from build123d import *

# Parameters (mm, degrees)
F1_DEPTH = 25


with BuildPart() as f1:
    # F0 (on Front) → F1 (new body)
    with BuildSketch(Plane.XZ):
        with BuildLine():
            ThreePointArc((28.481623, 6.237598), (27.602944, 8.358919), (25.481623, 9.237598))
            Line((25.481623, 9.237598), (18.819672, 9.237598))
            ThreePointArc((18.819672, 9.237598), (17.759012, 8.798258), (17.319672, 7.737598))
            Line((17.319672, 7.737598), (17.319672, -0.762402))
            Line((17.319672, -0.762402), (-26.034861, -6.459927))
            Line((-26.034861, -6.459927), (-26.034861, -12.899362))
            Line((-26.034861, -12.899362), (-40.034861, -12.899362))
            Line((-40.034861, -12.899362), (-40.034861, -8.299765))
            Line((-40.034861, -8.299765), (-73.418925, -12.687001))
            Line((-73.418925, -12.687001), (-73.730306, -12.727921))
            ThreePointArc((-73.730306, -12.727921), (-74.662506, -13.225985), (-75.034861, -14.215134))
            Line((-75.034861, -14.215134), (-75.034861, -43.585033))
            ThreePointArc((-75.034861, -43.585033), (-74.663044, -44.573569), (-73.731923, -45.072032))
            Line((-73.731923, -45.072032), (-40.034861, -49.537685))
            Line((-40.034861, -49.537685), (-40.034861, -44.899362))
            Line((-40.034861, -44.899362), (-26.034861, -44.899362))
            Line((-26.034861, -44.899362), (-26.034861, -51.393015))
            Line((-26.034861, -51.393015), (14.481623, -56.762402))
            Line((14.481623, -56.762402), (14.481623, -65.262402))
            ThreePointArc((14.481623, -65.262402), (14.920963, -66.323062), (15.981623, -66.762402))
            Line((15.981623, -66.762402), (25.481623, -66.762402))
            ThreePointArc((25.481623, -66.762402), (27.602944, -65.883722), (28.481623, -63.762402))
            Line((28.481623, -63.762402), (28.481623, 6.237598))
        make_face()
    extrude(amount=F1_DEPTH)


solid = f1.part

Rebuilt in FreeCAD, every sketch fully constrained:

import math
import FreeCAD as App
import Part
import Sketcher
from FreeCAD import Vector

doc = App.newDocument("Part")
params = doc.addObject("Spreadsheet::Sheet", "Params")
for row, (alias, value) in enumerate([
    ("sketch1_radius", "2.999999 mm"),
    ("sketch1_radius2", "1.500001 mm"),
    ("sketch1_radius3", "1.500002 mm"),
    ("sketch1_radius4", "1.499999 mm"),
    ("sketch1_radius5", "1.500001 mm"),
    ("pad1_length", "25 mm"),
], start=1):
    params.set(f"A{row}", alias)
    params.set(f"B{row}", "=" + value)
    params.setAlias(f"B{row}", alias)

body = doc.addObject("PartDesign::Body", "Body")

# Sketch on XZ plane
sketch1 = body.newObject("Sketcher::SketchObject", "Sketch")
sketch1.AttachmentSupport = (doc.getObject("XZ_Plane"), [""])
sketch1.MapMode = "FlatFace"
sketch1.addGeometry([
    Part.ArcOfCircle(Part.Circle(Vector(25.481625, 6.2376, 0), Vector(0, 0, 1), 2.999998), math.radians(-0.000043), math.radians(90.000043)),  # 0
    Part.LineSegment(Vector(25.481623, 9.237598, 0), Vector(18.819672, 9.237598, 0)),  # 1
    Part.ArcOfCircle(Part.Circle(Vector(18.819673, 7.737597, 0), Vector(0, 0, 1), 1.500001), math.radians(90.000022), math.radians(179.999978)),  # 2
    Part.LineSegment(Vector(17.319672, 7.737598, 0), Vector(17.319672, -0.762402, 0)),  # 3
    Part.LineSegment(Vector(17.319672, -0.762402, 0), Vector(-26.034861, -6.459927, 0)),  # 4
    Part.LineSegment(Vector(-26.034861, -6.459927, 0), Vector(-26.034861, -12.899362, 0)),  # 5
    Part.LineSegment(Vector(-26.034861, -12.899362, 0), Vector(-40.034861, -12.899362, 0)),  # 6
    Part.LineSegment(Vector(-40.034861, -12.899362, 0), Vector(-40.034861, -8.299765, 0)),  # 7
    Part.LineSegment(Vector(-40.034861, -8.299765, 0), Vector(-73.418925, -12.687001, 0)),  # 8
    Part.LineSegment(Vector(-73.418925, -12.687001, 0), Vector(-73.730306, -12.727921, 0)),  # 9
    Part.ArcOfCircle(Part.Circle(Vector(-73.534859, -14.215135, 0), Vector(0, 0, 1), 1.500002), math.radians(97.486798), math.radians(179.999954)),  # 10
    Part.LineSegment(Vector(-75.034861, -14.215134, 0), Vector(-75.034861, -43.585033, 0)),  # 11
    Part.ArcOfCircle(Part.Circle(Vector(-73.534862, -43.585033, 0), Vector(0, 0, 1), 1.499999), math.radians(179.999984), math.radians(262.450986)),  # 12
    Part.LineSegment(Vector(-73.731923, -45.072032, 0), Vector(-40.034861, -49.537685, 0)),  # 13
    Part.LineSegment(Vector(-40.034861, -49.537685, 0), Vector(-40.034861, -44.899362, 0)),  # 14
    Part.LineSegment(Vector(-40.034861, -44.899362, 0), Vector(-26.034861, -44.899362, 0)),  # 15
    Part.LineSegment(Vector(-26.034861, -44.899362, 0), Vector(-26.034861, -51.393015, 0)),  # 16
    Part.LineSegment(Vector(-26.034861, -51.393015, 0), Vector(14.481623, -56.762402, 0)),  # 17
    Part.LineSegment(Vector(14.481623, -56.762402, 0), Vector(14.481623, -65.262402, 0)),  # 18
    Part.ArcOfCircle(Part.Circle(Vector(15.981624, -65.262401, 0), Vector(0, 0, 1), 1.500001), math.radians(-179.999978), math.radians(-90.000022)),  # 19
    Part.LineSegment(Vector(15.981623, -66.762402, 0), Vector(25.481623, -66.762402, 0)),  # 20
    Part.ArcOfCircle(Part.Circle(Vector(25.481624, -63.762403, 0), Vector(0, 0, 1), 2.999999), math.radians(-90.00001), math.radians(0.00001)),  # 21
    Part.LineSegment(Vector(28.481623, -63.762402, 0), Vector(28.481623, 6.237598, 0)),  # 22
], False)
sketch1.addConstraint([
    Sketcher.Constraint("Coincident", 0, 2, 1, 1),
    Sketcher.Constraint("Coincident", 1, 2, 2, 1),
    Sketcher.Constraint("Coincident", 2, 2, 3, 1),
    Sketcher.Constraint("Coincident", 3, 2, 4, 1),
    Sketcher.Constraint("Coincident", 4, 2, 5, 1),
    Sketcher.Constraint("Coincident", 5, 2, 6, 1),
    Sketcher.Constraint("Coincident", 6, 2, 7, 1),
    Sketcher.Constraint("Coincident", 7, 2, 8, 1),
    Sketcher.Constraint("Coincident", 8, 2, 9, 1),
    Sketcher.Constraint("Coincident", 9, 2, 10, 1),
    Sketcher.Constraint("Coincident", 10, 2, 11, 1),
    Sketcher.Constraint("Coincident", 11, 2, 12, 1),
    Sketcher.Constraint("Coincident", 12, 2, 13, 1),
    Sketcher.Constraint("Coincident", 13, 2, 14, 1),
    Sketcher.Constraint("Coincident", 14, 2, 15, 1),
    Sketcher.Constraint("Coincident", 15, 2, 16, 1),
    Sketcher.Constraint("Coincident", 16, 2, 17, 1),
    Sketcher.Constraint("Coincident", 17, 2, 18, 1),
    Sketcher.Constraint("Coincident", 18, 2, 19, 1),
    Sketcher.Constraint("Coincident", 19, 2, 20, 1),
    Sketcher.Constraint("Coincident", 20, 2, 21, 1),
    Sketcher.Constraint("Coincident", 21, 2, 22, 1),
    Sketcher.Constraint("Coincident", 22, 2, 0, 1),
    Sketcher.Constraint("Horizontal", 1),
    Sketcher.Constraint("Vertical", 3),
    Sketcher.Constraint("Vertical", 5),
    Sketcher.Constraint("Horizontal", 6),
    Sketcher.Constraint("Vertical", 7),
    Sketcher.Constraint("Vertical", 11),
    Sketcher.Constraint("Vertical", 14),
    Sketcher.Constraint("Horizontal", 15),
    Sketcher.Constraint("Vertical", 16),
    Sketcher.Constraint("Vertical", 18),
    Sketcher.Constraint("Horizontal", 20),
    Sketcher.Constraint("Vertical", 22),
    Sketcher.Constraint("Radius", 21, 2.999999),
    Sketcher.Constraint("Radius", 2, 1.500001),
    Sketcher.Constraint("Radius", 10, 1.500002),
    Sketcher.Constraint("Radius", 12, 1.499999),
    Sketcher.Constraint("Radius", 19, 1.500001),
    Sketcher.Constraint("DistanceX", 6, 2, 6, 1, 14.0),
    Sketcher.Constraint("DistanceX", 15, 1, 15, 2, 14.0),
    Sketcher.Constraint("DistanceY", 22, 1, 22, 2, 70.0),
    Sketcher.Constraint("DistanceX", 20, 1, 20, 2, 9.5),
    Sketcher.Constraint("DistanceY", 3, 2, 3, 1, 8.5),
    Sketcher.Constraint("DistanceY", 18, 2, 18, 1, 8.5),
    Sketcher.Constraint("DistanceY", 19, 3, 2, 3, 72.999999),
    Sketcher.Constraint("DistanceY", 3, 2, 1, 2, 10.0),
    Sketcher.Constraint("DistanceX", 10, 2, 6, 2, 35.0),
    Sketcher.Constraint("DistanceX", 11, 2, 13, 2, 35.0),
    Sketcher.Constraint("DistanceY", 14, 2, 6, 2, 32.0),
    Sketcher.Constraint("DistanceX", 17, 2, 21, 3, 11.000001),
    Sketcher.Constraint("DistanceY", 21, 3, 17, 2, 7.000001),
    Sketcher.Constraint("DistanceX", 18, 2, 20, 2, 11.0),
    Sketcher.Constraint("DistanceY", 20, 2, 21, 2, 3.0),
    Sketcher.Constraint("DistanceX", 0, 2, 22, 2, 3.0),
    Sketcher.Constraint("DistanceX", 19, 3, 0, 3, 9.500002),
    Sketcher.Constraint("DistanceX", 2, 2, 1, 2, 1.5),
    Sketcher.Constraint("DistanceY", 11, 2, 11, 1, 29.369899),
    Sketcher.Constraint("DistanceY", 8, 2, -1, 1, 12.687001),
    Sketcher.Constraint("DistanceY", 12, 2, 12, 3, 1.486999),
    Sketcher.Constraint("DistanceY", 12, 2, 11, 2, 1.486999),
    Sketcher.Constraint("DistanceX", 1, 2, 1, 1, 6.661951),
    Sketcher.Constraint("DistanceY", -1, 1, 0, 3, 6.2376),
    Sketcher.Constraint("DistanceY", 12, 3, 10, 3, 29.369898),
    Sketcher.Constraint("Distance", 8, 33.671109),
    Sketcher.Constraint("Distance", 9, 0.314058),
    Sketcher.Constraint("Distance", 17, 40.87072),
    Sketcher.Constraint("DistanceY", 5, 2, 5, 1, 6.439435),
    Sketcher.Constraint("DistanceY", 7, 1, 7, 2, 4.599597),
    Sketcher.Constraint("DistanceY", 14, 1, 14, 2, 4.638323),
    Sketcher.Constraint("DistanceY", 16, 2, 16, 1, 6.493653),
    Sketcher.Constraint("DistanceX", 10, 3, -1, 1, 73.534859),
    Sketcher.Constraint("DistanceY", 9, 2, -1, 1, 12.727921),
    Sketcher.Constraint("DistanceY", 12, 2, -1, 1, 45.072032),
])
sketch1.setExpression("Constraints[35]", "Params.sketch1_radius")
sketch1.setExpression("Constraints[36]", "Params.sketch1_radius2")
sketch1.setExpression("Constraints[37]", "Params.sketch1_radius3")
sketch1.setExpression("Constraints[38]", "Params.sketch1_radius4")
sketch1.setExpression("Constraints[39]", "Params.sketch1_radius5")
pad1 = body.newObject("PartDesign::Pad", "Pad")
pad1.Profile = sketch1
pad1.setExpression("Length", "Params.pad1_length")

doc.recompute()
